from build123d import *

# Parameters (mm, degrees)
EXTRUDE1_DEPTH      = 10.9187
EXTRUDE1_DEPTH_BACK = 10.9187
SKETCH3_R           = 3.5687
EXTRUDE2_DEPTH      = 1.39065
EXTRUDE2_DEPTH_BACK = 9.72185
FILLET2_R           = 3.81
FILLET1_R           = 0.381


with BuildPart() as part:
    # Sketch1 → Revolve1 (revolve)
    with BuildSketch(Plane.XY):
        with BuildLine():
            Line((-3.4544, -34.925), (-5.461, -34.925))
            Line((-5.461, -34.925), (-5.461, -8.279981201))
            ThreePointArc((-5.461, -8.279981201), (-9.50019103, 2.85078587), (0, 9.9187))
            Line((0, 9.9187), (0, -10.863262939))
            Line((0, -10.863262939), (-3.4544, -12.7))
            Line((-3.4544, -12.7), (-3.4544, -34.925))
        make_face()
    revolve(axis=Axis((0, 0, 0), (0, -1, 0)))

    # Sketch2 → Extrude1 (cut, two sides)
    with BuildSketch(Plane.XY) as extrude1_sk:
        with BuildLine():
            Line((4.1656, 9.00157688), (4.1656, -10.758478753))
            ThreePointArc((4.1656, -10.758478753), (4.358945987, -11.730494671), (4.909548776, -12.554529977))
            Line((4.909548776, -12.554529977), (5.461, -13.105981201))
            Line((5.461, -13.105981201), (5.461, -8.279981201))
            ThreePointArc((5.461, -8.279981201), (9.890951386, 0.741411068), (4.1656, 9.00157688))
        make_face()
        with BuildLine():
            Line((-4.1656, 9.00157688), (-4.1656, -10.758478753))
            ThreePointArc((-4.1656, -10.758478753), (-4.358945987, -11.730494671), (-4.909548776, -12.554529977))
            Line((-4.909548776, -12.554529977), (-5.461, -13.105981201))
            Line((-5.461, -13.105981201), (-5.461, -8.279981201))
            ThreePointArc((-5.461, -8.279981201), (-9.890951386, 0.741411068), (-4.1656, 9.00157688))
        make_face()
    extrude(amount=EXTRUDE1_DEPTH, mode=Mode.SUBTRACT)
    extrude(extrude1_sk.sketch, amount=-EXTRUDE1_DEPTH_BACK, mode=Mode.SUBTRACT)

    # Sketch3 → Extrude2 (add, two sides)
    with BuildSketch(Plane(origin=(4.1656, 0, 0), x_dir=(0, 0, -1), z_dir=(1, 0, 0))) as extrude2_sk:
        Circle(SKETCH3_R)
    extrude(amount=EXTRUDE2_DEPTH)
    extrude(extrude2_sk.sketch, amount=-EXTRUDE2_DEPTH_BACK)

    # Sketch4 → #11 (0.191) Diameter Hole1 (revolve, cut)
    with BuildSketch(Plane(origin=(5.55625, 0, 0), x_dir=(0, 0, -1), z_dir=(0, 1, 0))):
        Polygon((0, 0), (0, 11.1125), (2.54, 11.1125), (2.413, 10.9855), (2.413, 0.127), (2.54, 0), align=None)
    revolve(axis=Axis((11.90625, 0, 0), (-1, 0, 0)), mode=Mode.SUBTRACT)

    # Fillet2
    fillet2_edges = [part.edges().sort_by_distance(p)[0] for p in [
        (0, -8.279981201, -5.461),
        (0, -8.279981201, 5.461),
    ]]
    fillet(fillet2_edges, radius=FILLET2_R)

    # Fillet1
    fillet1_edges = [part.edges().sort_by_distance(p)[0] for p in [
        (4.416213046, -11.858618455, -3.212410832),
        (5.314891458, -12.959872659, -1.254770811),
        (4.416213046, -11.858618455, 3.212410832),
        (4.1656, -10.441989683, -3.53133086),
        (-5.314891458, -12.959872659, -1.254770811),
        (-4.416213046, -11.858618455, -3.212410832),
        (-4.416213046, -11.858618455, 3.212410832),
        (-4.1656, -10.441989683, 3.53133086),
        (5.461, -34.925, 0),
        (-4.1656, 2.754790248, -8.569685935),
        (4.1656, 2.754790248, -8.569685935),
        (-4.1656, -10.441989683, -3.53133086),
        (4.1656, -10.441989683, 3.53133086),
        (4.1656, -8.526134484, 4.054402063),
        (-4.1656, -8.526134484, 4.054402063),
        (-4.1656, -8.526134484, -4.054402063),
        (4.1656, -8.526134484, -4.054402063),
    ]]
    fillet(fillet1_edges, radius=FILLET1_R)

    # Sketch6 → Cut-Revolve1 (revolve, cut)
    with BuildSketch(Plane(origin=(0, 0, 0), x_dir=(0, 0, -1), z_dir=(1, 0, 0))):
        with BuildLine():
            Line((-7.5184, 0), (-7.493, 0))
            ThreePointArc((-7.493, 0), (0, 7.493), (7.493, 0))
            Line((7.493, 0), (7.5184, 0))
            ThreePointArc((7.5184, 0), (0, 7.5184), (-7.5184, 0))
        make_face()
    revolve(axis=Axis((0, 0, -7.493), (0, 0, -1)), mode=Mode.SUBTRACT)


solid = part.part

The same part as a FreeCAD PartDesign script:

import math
import FreeCAD as App
import Part
import Sketcher
from FreeCAD import Vector
Q = App.Units.Quantity


def edges_at(feature, points):
    """Names of the edges that pass closest to the given points."""
    edges = feature.Shape.Edges
    near = lambda p: min(range(len(edges)), key=lambda i: edges[i].distToShape(Part.Vertex(*p))[0])
    return sorted({f"Edge{near(p) + 1}" for p in points})

doc = App.newDocument("Part")
body = doc.addObject("PartDesign::Body", "Body")
body.AllowCompound = True

sketch1 = doc.addObject("Sketcher::SketchObject", "Sketch")
body.addObject(sketch1)
sketch1.AttachmentSupport = (doc.XY_Plane, [""])
sketch1.MapMode = "FlatFace"
sketch1.addGeometry([
    Part.LineSegment(Vector(-5.5, -34.9, 0), Vector(-3.5, -34.9, 0)),
    Part.LineSegment(Vector(-3.5, -34.9, 0), Vector(-3.5, -12.7, 0)),
    Part.LineSegment(Vector(-3.5, -12.7, 0), Vector(0, -10.9, 0)),
    Part.LineSegment(Vector(0, -10.9, 0), Vector(0, 9.9, 0)),
    Part.ArcOfCircle(Part.Circle(Vector(0, 0, 0), Vector(0, 0, 1), 9.9), math.radians(90), math.radians(237)),
    Part.LineSegment(Vector(-5.5, -8.3, 0), Vector(-5.5, -34.9, 0)),
], False)
sketch1.addConstraint([
    Sketcher.Constraint("Coincident", 0, 2, 1, 1),
    Sketcher.Constraint("Coincident", 1, 2, 2, 1),
    Sketcher.Constraint("Coincident", 2, 2, 3, 1),
    Sketcher.Constraint("Coincident", 3, 2, 4, 1),
    Sketcher.Constraint("Coincident", 4, 2, 5, 1),
    Sketcher.Constraint("Coincident", 5, 2, 0, 1),
    Sketcher.Constraint("Horizontal", 0),
    Sketcher.Constraint("Vertical", 1),
    Sketcher.Constraint("Vertical", 3),
    Sketcher.Constraint("Vertical", 5),
    Sketcher.Constraint("Coincident", 4, 3, -1, 1),
    Sketcher.Constraint("PointOnObject", 2, 2, -2),
    Sketcher.Constraint("Angle", 2, Q("28 deg")),
    Sketcher.Constraint("DistanceY", 1, 2, -1, 1, Q("0.5 in")),
    Sketcher.Constraint("Radius", 4, Q("0.3905 in")),
    Sketcher.Constraint("DistanceX", 0, 1, 0, 2, Q("0.079 in")),
    Sketcher.Constraint("DistanceY", 1, 1, 1, 2, Q("0.875 in")),
    Sketcher.Constraint("DistanceX", 0, 2, -1, 1, Q("0.136 in")),
])
revolution = doc.addObject("PartDesign::Revolution", "Revolution")
body.addObject(revolution)
revolution.Profile = sketch1
revolution.ReferenceAxis = (sketch1, ["V_Axis"])
revolution.Angle = 360

sketch2 = doc.addObject("Sketcher::SketchObject", "Sketch001")
body.addObject(sketch2)
sketch2.AttachmentSupport = (doc.XY_Plane, [""])
sketch2.MapMode = "FlatFace"
sketch2.addGeometry([
    Part.LineSegment(Vector(4.2, 9, 0), Vector(4.2, -10.8, 0)),
    Part.ArcOfCircle(Part.Circle(Vector(6.7, -10.8, 0), Vector(0, 0, 1), 2.5), math.radians(180), math.radians(225)),
    Part.LineSegment(Vector(4.9, -12.6, 0), Vector(5.5, -13.1, 0)),
    Part.LineSegment(Vector(5.5, -13.1, 0), Vector(5.5, -8.3, 0)),
    Part.ArcOfCircle(Part.Circle(Vector(0, 0, 0), Vector(0, 0, 1), 9.9), math.radians(-57), math.radians(65)),
    Part.LineSegment(Vector(-4.2, -10.8, 0), Vector(-4.2, 9, 0)),
    Part.ArcOfCircle(Part.Circle(Vector(0, 0, 0), Vector(0, 0, 1), 9.9), math.radians(115), math.radians(237)),
    Part.LineSegment(Vector(-5.5, -8.3, 0), Vector(-5.5, -13.1, 0)),
    Part.LineSegment(Vector(-5.5, -13.1, 0), Vector(-4.9, -12.6, 0)),
    Part.ArcOfCircle(Part.Circle(Vector(-6.7, -10.8, 0), Vector(0, 0, 1), 2.5), math.radians(-45), math.radians(0)),
], False)
sketch2.addConstraint([
    Sketcher.Constraint("Tangent", 0, 2, 1, 1),
    Sketcher.Constraint("Tangent", 1, 2, 2, 1),
    Sketcher.Constraint("Coincident", 2, 2, 3, 1),
    Sketcher.Constraint("Coincident", 3, 2, 4, 1),
    Sketcher.Constraint("Coincident", 4, 2, 0, 1),
    Sketcher.Constraint("Coincident", 5, 2, 6, 1),
    Sketcher.Constraint("Coincident", 6, 2, 7, 1),
    Sketcher.Constraint("Coincident", 7, 2, 8, 1),
    Sketcher.Constraint("Tangent", 8, 2, 9, 1),
    Sketcher.Constraint("Tangent", 9, 2, 5, 1),
    Sketcher.Constraint("Vertical", 0),
    Sketcher.Constraint("Vertical", 3),
    Sketcher.Constraint("Vertical", 5),
    Sketcher.Constraint("Vertical", 7),
    Sketcher.Constraint("Coincident", 4, 3, -1, 1),
    Sketcher.Constraint("Coincident", 6, 3, -1, 1),
    Sketcher.Constraint("Equal", 4, 6),
    Sketcher.Constraint("Equal", 1, 9),
    Sketcher.Constraint("Symmetric", 1, 3, 9, 3, -2),
    Sketcher.Constraint("Symmetric", 2, 2, 7, 2, -2),
    Sketcher.Constraint("Perpendicular", 2, 8),
    Sketcher.Constraint("Radius", 1, Q("0.1 in")),
    Sketcher.Constraint("DistanceY", 3, 1, 3, 2, Q("0.19 in")),
    Sketcher.Constraint("Radius", 4, Q("0.3905 in")),
    Sketcher.Constraint("DistanceX", 6, 2, 3, 2, Q("0.43 in")),
    Sketcher.Constraint("DistanceX", -1, 1, 1, 3, Q("0.264 in")),
])
pocket1 = doc.addObject("PartDesign::Pocket", "Pocket")
body.addObject(pocket1)
pocket1.Profile = sketch2
pocket1.Type = "ThroughAll"
pocket1.Midplane = True

sketch3 = doc.addObject("Sketcher::SketchObject", "Sketch002")
body.addObject(sketch3)
sketch3.AttachmentSupport = (doc.YZ_Plane, [""])
sketch3.MapMode = "FlatFace"
sketch3.AttachmentOffset = App.Placement(Vector(0, 0, 0.164 * 25.4), App.Rotation())
sketch3.addGeometry(Part.Circle(Vector(0, 0, 0), Vector(0, 0, 1), 3.6), False)
sketch3.addConstraint([
    Sketcher.Constraint("Coincident", 0, 3, -1, 1),
    Sketcher.Constraint("Diameter", 0, Q("0.281 in")),
])
pad1 = doc.addObject("PartDesign::Pad", "Pad")
body.addObject(pad1)
pad1.Profile = sketch3
pad1.Type = "TwoLengths"
pad1.Length = 1.39065
pad1.Length2 = 9.72185

sketch4 = doc.addObject("Sketcher::SketchObject", "Sketch003")
body.addObject(sketch4)
sketch4.AttachmentSupport = (doc.XZ_Plane, [""])
sketch4.MapMode = "FlatFace"
sketch4.addGeometry([
    Part.LineSegment(Vector(-5.56, 0, 0), Vector(5.56, 0, 0)),
    Part.LineSegment(Vector(5.56, 0, 0), Vector(5.56, -2.54, 0)),
    Part.LineSegment(Vector(5.56, -2.54, 0), Vector(5.43, -2.41, 0)),
    Part.LineSegment(Vector(5.43, -2.41, 0), Vector(-5.43, -2.41, 0)),
    Part.LineSegment(Vector(-5.43, -2.41, 0), Vector(-5.56, -2.54, 0)),
    Part.LineSegment(Vector(-5.56, -2.54, 0), Vector(-5.56, 0, 0)),
], False)
sketch4.addConstraint([
    Sketcher.Constraint("Coincident", 0, 2, 1, 1),
    Sketcher.Constraint("Coincident", 1, 2, 2, 1),
    Sketcher.Constraint("Coincident", 2, 2, 3, 1),
    Sketcher.Constraint("Coincident", 3, 2, 4, 1),
    Sketcher.Constraint("Coincident", 4, 2, 5, 1),
    Sketcher.Constraint("Coincident", 5, 2, 0, 1),
    Sketcher.Constraint("Horizontal", 0),
    Sketcher.Constraint("Vertical", 1),
    Sketcher.Constraint("Horizontal", 3),
    Sketcher.Constraint("Vertical", 5),
    Sketcher.Constraint("Symmetric", 0, 2, 5, 2, -1, 1),
    Sketcher.Constraint("Perpendicular", 2, 4),
    Sketcher.Constraint("Horizontal", 1, 2, 4, 2),
    Sketcher.Constraint("Equal", 2, 4),
    Sketcher.Constraint("DistanceY", 1, 2, 1, 1, Q("0.1 in")),
    Sketcher.Constraint("DistanceX", 0, 1, 0, 2, Q("0.4375 in")),
    Sketcher.Constraint("DistanceX", 3, 2, 3, 1, Q("0.4275 in")),
])
groove = doc.addObject("PartDesign::Groove", "Groove")
body.addObject(groove)
groove.Profile = sketch4
groove.ReferenceAxis = (sketch4, ["H_Axis"])
groove.Angle = 360
doc.recompute()

fillet = doc.addObject("PartDesign::Fillet", "Fillet")
body.addObject(fillet)
fillet.Base = (groove, edges_at(groove, [(0, -8.28, -5.461), (0, -8.28, 5.461)]))
fillet.Radius = Q("0.15 in")
doc.recompute()

fillet2 = doc.addObject("PartDesign::Fillet", "Fillet001")
body.addObject(fillet2)
fillet2.Base = (fillet, edges_at(fillet, [
    (4.416, -11.859, -3.212),
    (5.315, -12.96, -1.255),
    (4.416, -11.859, 3.212),
    (4.166, -10.442, -3.531),
    (-5.315, -12.96, -1.255),
    (-4.416, -11.859, -3.212),
    (-4.416, -11.859, 3.212),
    (-4.166, -10.442, 3.531),
    (5.461, -34.925, 0),
    (-4.166, 2.755, -8.57),
    (4.166, 2.755, -8.57),
    (-4.166, -10.442, -3.531),
    (4.166, -10.442, 3.531),
    (4.166, -8.526, 4.054),
    (-4.166, -8.526, 4.054),
    (-4.166, -8.526, -4.054),
    (4.166, -8.526, -4.054),
]))
fillet2.Radius = Q("0.015 in")

sketch5 = doc.addObject("Sketcher::SketchObject", "Sketch004")
body.addObject(sketch5)
sketch5.AttachmentSupport = (doc.YZ_Plane, [""])
sketch5.MapMode = "FlatFace"
sketch5.addGeometry([
    Part.LineSegment(Vector(0, 7.518, 0), Vector(0, 7.493, 0)),
    Part.ArcOfCircle(Part.Circle(Vector(0, 0, 0), Vector(0, 0, 1), 7.493), math.radians(-90), math.radians(90)),
    Part.LineSegment(Vector(0, -7.493, 0), Vector(0, -7.518, 0)),
    Part.ArcOfCircle(Part.Circle(Vector(0, 0, 0), Vector(0, 0, 1), 7.518), math.radians(-90), math.radians(90)),
], False)
sketch5.addConstraint([
    Sketcher.Constraint("Coincident", 0, 2, 1, 2),
    Sketcher.Constraint("Coincident", 1, 1, 2, 1),
    Sketcher.Constraint("Coincident", 2, 2, 3, 1),
    Sketcher.Constraint("Coincident", 3, 2, 0, 1),
    Sketcher.Constraint("Vertical", 0),
    Sketcher.Constraint("Vertical", 2),
    Sketcher.Constraint("Coincident", 1, 3, -1, 1),
    Sketcher.Constraint("Coincident", 3, 3, -1, 1),
    Sketcher.Constraint("PointOnObject", 0, 2, -2),
    Sketcher.Constraint("PointOnObject", 1, 1, -2),
    Sketcher.Constraint("Radius", 1, Q("0.295 in")),
    Sketcher.Constraint("Radius", 3, Q("0.296 in")),
])
groove2 = doc.addObject("PartDesign::Groove", "Groove001")
body.addObject(groove2)
groove2.Profile = sketch5
groove2.ReferenceAxis = (sketch5, ["V_Axis"])
groove2.Angle = 360

doc.recompute()
